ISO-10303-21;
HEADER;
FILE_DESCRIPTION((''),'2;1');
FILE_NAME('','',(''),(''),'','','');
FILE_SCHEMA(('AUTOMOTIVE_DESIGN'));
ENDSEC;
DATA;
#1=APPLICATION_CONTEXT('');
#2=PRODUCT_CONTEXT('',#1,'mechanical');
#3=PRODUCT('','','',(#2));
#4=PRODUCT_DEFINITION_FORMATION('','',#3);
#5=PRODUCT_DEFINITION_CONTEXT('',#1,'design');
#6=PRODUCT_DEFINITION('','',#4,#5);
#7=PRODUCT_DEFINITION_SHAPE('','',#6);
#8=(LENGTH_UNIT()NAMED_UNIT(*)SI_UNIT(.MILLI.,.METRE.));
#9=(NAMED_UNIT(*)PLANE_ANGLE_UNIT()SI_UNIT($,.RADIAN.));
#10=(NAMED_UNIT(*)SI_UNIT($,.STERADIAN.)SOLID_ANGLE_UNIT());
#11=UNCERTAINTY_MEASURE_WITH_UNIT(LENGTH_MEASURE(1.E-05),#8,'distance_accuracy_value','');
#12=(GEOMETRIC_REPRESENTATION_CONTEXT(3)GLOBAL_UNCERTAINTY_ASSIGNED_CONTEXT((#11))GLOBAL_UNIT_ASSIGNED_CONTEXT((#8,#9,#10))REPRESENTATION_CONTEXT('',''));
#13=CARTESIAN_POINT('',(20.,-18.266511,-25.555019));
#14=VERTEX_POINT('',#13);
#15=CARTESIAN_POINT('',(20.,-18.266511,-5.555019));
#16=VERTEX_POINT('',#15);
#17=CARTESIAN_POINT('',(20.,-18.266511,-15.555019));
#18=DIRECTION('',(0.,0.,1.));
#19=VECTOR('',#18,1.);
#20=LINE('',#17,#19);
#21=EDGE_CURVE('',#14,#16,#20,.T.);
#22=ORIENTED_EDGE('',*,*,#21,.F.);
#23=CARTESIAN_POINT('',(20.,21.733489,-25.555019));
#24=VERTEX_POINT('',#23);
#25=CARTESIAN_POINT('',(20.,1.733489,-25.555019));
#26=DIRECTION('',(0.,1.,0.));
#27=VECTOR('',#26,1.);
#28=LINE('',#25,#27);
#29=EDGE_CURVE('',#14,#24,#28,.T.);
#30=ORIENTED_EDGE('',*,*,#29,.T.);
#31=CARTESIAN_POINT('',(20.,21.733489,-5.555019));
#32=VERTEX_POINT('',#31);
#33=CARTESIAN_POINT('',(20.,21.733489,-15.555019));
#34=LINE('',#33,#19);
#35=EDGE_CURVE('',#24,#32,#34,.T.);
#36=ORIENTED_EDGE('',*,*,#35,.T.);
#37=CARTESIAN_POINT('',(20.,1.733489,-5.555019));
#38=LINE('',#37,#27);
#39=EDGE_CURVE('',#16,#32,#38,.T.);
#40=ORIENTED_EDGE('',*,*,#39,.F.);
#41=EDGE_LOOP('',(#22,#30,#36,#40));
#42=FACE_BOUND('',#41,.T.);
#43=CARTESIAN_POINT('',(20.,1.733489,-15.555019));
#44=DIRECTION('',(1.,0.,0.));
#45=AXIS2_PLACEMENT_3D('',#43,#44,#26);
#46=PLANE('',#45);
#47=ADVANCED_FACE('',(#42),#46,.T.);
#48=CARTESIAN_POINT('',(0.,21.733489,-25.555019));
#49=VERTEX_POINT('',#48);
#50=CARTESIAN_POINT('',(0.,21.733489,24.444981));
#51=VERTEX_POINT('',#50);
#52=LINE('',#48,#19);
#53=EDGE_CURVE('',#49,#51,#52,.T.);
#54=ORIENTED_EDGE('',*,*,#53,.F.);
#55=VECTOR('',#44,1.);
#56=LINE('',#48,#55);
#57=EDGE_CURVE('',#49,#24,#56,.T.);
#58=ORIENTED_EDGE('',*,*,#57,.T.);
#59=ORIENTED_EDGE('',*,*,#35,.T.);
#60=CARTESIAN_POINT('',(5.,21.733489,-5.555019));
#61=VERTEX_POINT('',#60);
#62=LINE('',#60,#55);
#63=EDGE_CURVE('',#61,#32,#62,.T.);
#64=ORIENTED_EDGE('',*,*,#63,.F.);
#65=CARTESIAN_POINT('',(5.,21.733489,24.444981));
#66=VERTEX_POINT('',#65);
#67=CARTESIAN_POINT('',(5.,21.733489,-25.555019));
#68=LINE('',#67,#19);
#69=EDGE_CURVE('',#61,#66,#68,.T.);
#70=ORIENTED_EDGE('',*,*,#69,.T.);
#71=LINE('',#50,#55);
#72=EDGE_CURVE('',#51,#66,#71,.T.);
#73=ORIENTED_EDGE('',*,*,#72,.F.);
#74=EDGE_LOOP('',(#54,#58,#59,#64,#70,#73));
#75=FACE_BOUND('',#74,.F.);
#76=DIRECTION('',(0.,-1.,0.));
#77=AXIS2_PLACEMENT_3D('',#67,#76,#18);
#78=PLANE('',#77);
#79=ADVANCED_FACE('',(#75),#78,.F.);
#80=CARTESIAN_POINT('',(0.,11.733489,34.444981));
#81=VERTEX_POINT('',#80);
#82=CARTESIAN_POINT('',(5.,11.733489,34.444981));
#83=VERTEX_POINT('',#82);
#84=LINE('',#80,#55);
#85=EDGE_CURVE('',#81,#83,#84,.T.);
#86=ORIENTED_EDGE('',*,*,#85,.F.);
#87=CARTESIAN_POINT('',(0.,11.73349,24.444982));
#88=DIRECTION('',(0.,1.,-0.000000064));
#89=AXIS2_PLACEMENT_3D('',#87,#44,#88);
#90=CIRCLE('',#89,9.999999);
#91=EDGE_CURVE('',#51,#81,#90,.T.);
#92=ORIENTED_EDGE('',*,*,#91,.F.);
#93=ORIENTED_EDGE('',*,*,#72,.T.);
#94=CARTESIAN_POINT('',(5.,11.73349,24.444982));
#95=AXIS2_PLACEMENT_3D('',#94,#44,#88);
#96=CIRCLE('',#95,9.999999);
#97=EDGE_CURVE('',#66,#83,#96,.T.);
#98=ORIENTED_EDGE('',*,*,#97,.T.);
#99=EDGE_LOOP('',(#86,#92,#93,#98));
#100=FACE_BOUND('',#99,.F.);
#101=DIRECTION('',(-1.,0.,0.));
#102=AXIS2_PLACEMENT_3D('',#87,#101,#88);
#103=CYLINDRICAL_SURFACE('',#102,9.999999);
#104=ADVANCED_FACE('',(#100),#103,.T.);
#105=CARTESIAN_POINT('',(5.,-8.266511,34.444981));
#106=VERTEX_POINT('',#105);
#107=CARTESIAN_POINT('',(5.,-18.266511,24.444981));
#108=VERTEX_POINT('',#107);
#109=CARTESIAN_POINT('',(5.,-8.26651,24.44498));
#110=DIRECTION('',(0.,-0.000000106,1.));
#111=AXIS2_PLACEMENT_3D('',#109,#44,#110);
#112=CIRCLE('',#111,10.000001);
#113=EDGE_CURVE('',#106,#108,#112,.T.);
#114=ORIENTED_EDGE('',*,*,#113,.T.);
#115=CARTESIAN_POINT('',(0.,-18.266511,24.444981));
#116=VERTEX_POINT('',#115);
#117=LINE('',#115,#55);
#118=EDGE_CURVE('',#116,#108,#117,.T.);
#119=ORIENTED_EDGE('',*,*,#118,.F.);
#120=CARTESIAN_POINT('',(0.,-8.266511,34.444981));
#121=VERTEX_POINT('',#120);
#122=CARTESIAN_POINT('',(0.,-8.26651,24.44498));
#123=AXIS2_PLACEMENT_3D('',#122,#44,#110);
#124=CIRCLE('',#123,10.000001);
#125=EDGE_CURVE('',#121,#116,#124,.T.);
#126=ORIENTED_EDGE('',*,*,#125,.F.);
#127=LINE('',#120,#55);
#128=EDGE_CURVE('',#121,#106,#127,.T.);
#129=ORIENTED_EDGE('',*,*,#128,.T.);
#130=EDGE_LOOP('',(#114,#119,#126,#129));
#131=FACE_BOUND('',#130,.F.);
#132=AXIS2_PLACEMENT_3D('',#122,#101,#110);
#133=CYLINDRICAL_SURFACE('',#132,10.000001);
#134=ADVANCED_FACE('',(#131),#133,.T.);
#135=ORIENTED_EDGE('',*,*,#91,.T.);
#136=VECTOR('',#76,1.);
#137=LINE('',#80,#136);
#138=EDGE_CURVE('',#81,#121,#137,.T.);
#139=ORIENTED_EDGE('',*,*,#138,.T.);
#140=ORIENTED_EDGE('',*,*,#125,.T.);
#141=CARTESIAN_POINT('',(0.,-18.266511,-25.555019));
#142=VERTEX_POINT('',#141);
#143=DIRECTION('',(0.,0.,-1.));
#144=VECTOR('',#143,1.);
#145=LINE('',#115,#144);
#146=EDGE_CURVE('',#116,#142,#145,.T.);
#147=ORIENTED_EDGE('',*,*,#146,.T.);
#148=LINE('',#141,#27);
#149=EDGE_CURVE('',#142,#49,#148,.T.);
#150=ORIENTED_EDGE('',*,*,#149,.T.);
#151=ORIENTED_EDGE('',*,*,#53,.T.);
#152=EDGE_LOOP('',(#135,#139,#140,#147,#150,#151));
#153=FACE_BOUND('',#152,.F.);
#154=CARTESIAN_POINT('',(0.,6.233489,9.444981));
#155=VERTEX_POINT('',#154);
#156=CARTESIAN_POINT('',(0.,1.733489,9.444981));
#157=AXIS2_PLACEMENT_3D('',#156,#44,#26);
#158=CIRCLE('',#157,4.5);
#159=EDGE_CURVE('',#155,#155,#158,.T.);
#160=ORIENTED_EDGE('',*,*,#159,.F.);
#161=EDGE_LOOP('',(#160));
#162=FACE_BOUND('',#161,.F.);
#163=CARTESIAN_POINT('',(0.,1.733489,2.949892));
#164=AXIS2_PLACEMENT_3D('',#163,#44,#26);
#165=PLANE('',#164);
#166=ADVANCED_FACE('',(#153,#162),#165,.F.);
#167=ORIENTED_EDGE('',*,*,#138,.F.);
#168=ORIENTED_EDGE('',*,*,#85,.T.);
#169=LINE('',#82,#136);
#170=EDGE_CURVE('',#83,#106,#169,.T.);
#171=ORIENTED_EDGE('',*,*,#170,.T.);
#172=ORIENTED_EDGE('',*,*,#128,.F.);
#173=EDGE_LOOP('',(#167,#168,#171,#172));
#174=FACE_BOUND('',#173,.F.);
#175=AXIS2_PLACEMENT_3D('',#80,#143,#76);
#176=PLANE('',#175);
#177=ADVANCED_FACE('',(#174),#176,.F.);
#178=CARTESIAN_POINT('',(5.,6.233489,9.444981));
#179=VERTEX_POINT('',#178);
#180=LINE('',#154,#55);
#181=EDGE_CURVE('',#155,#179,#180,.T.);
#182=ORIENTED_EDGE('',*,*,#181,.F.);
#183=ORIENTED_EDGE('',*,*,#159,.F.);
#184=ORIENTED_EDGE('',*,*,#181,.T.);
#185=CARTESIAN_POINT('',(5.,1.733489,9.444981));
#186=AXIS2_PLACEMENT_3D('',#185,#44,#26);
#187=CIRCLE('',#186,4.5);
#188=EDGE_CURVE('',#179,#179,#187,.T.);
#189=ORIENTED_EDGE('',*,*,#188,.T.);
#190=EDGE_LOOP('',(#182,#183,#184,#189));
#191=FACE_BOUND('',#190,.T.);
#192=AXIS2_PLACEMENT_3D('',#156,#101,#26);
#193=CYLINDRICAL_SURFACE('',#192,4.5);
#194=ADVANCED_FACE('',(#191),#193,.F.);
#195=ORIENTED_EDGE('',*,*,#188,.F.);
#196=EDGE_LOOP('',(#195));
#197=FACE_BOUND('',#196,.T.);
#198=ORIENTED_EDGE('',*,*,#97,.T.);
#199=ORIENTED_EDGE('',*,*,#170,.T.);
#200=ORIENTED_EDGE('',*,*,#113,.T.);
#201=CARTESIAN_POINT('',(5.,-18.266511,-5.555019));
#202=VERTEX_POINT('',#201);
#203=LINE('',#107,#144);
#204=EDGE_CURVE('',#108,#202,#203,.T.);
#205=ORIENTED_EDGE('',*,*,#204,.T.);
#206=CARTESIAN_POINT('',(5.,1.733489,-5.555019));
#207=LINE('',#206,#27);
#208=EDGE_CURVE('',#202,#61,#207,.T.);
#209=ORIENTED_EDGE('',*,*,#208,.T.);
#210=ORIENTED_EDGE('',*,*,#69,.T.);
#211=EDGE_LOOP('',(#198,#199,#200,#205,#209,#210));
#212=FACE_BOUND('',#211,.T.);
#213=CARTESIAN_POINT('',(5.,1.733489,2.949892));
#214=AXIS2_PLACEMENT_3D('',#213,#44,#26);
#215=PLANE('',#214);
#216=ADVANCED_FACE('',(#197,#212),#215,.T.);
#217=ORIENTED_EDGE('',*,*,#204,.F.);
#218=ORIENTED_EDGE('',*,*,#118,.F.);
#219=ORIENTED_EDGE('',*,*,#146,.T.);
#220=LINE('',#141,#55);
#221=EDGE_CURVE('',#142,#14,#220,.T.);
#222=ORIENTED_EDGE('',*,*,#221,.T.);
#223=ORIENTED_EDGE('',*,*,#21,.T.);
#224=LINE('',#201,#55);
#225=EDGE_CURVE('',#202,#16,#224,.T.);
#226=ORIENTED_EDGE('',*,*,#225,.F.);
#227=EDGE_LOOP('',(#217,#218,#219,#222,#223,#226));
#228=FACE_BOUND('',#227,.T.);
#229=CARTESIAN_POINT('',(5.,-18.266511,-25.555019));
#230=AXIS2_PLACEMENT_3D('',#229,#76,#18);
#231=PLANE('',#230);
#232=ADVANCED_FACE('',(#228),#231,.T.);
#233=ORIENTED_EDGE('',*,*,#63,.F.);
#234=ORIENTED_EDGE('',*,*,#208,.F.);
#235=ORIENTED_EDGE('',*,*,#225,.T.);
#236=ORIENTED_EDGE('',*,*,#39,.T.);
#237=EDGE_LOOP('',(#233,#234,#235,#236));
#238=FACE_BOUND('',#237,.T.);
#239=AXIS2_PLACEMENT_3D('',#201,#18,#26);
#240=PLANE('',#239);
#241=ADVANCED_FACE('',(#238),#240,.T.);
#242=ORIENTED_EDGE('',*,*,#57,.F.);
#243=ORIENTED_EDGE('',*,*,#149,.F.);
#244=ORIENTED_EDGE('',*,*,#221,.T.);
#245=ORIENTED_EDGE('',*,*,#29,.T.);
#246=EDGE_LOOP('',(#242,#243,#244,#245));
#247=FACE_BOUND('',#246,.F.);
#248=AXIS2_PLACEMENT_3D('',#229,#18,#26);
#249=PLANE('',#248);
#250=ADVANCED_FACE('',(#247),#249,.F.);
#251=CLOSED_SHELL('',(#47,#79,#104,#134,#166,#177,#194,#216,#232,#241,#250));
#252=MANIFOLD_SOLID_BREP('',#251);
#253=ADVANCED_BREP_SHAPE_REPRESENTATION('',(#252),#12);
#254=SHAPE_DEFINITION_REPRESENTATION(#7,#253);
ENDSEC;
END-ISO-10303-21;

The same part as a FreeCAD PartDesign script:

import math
import FreeCAD as App
import Part
import Sketcher

V = App.Vector
Q = App.Units.Quantity


def add_polygon(sketch, points):
    """Adds a closed chain of lines whose ends are joined by coincident constraints."""
    first, n = sketch.GeometryCount, len(points)
    for a, b in zip(points, points[1:] + points[:1]):
        sketch.addGeometry(Part.LineSegment(App.Vector(*a, 0), App.Vector(*b, 0)), False)
    for i in range(n):
        sketch.addConstraint(Sketcher.Constraint("Coincident", first + i, 2, first + (i + 1) % n, 1))

doc = App.newDocument("Part")
body = doc.addObject("PartDesign::Body", "Body")

# Sketch on YZ plane
sketch1 = body.newObject("Sketcher::SketchObject", "Sketch")
sketch1.AttachmentSupport = (doc.getObject("YZ_Plane"), [""])
sketch1.MapMode = "FlatFace"
sketch1.addGeometry([
    Part.LineSegment(V(11.733489, 34.444981, 0), V(-8.266511, 34.444981, 0)),  # 0
    Part.ArcOfCircle(Part.Circle(V(-8.26651, 24.44498, 0), V(0, 0, 1), 10.000001), math.radians(90.000006), math.radians(179.999994)),  # 1
    Part.LineSegment(V(-18.266511, 24.444981, 0), V(-18.266511, -25.555019, 0)),  # 2
    Part.LineSegment(V(-18.266511, -25.555019, 0), V(21.733489, -25.555019, 0)),  # 3
    Part.LineSegment(V(21.733489, -25.555019, 0), V(21.733489, 24.444981, 0)),  # 4
    Part.ArcOfCircle(Part.Circle(V(11.73349, 24.444982, 0), V(0, 0, 1), 9.999999), math.radians(-0.000004), math.radians(90.000004)),  # 5
    Part.Circle(V(1.733489, 9.444981, 0), V(0, 0, 1), 4.5),  # 6
], False)
sketch1.addConstraint([
    Sketcher.Constraint("Tangent", 0, 2, 1, 1),
    Sketcher.Constraint("Tangent", 1, 2, 2, 1),
    Sketcher.Constraint("Coincident", 2, 2, 3, 1),
    Sketcher.Constraint("Coincident", 3, 2, 4, 1),
    Sketcher.Constraint("Tangent", 4, 2, 5, 1),
    Sketcher.Constraint("Tangent", 5, 2, 0, 1),
    Sketcher.Constraint("Horizontal", 0),
    Sketcher.Constraint("Vertical", 2),
    Sketcher.Constraint("Horizontal", 3),
    Sketcher.Constraint("Vertical", 4),
    Sketcher.Constraint("Equal", 1, 5),
    Sketcher.Constraint("Diameter", 6, Q("9 mm")),
    Sketcher.Constraint("Radius", 1, Q("10.000001 mm")),
    Sketcher.Constraint("DistanceX", 0, 2, 0, 1, Q("20 mm")),
    Sketcher.Constraint("DistanceY", 2, 2, 2, 1, Q("50 mm")),
    Sketcher.Constraint("DistanceX", 1, 3, 6, 3, Q("9.999999 mm")),
    Sketcher.Constraint("DistanceY", 6, 3, 1, 3, Q("14.999999 mm")),
    Sketcher.Constraint("DistanceX", 1, 3, -1, 1, Q("8.26651 mm")),
    Sketcher.Constraint("DistanceY", -1, 1, 1, 3, Q("24.44498 mm")),
])
pad1 = body.newObject("PartDesign::Pad", "Pad")
pad1.Profile = sketch1
pad1.Length = 5

# Sketch on YZ plane
sketch2 = body.newObject("Sketcher::SketchObject", "Sketch001")
sketch2.AttachmentSupport = (doc.getObject("YZ_Plane"), [""])
sketch2.MapMode = "FlatFace"
sketch2.AttachmentOffset = App.Placement(V(0, 0, 5), App.Rotation())
add_polygon(sketch2, [(-18.266511, -5.555019), (-18.266511, -25.555019), (21.733489, -25.555019), (21.733489, -5.555019)])  # lines 0-3
sketch2.addConstraint([
    Sketcher.Constraint("Vertical", 0),
    Sketcher.Constraint("Horizontal", 1),
    Sketcher.Constraint("Vertical", 2),
    Sketcher.Constraint("Horizontal", 3),
    Sketcher.Constraint("DistanceX", 1, 1, 1, 2, Q("40 mm")),
    Sketcher.Constraint("DistanceY", 0, 2, 0, 1, Q("20 mm")),
    Sketcher.Constraint("DistanceX", 0, 2, -1, 1, Q("18.266511 mm")),
    Sketcher.Constraint("DistanceY", 0, 2, -1, 1, Q("25.555019 mm")),
])
pad2 = body.newObject("PartDesign::Pad", "Pad001")
pad2.Profile = sketch2
pad2.Length = 15

doc.recompute()
